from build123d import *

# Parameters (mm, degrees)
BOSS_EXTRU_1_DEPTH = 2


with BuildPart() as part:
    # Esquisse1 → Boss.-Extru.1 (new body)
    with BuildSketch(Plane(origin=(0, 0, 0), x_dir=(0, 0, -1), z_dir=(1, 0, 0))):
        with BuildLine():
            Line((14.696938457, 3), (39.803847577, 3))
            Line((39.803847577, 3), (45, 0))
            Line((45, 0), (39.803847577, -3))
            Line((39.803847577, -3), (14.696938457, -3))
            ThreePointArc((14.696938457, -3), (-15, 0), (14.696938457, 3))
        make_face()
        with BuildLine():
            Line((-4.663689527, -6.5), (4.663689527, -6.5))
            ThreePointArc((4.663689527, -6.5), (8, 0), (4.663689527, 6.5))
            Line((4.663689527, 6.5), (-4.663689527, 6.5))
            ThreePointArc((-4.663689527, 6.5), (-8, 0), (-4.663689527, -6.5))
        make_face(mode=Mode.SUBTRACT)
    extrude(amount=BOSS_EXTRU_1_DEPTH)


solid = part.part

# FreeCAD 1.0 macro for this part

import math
import FreeCAD as App
import Part
import Sketcher
from FreeCAD import Vector
Q = App.Units.Quantity

doc = App.newDocument("Part")
body = doc.addObject("PartDesign::Body", "Body")

# Sketch on YZ plane
sketch1 = body.newObject("Sketcher::SketchObject", "Sketch")
sketch1.AttachmentSupport = (doc.getObject("YZ_Plane"), [""])
sketch1.MapMode = "FlatFace"
sketch1.addGeometry(Part.LineSegment(Vector(3, -39.803848, 0), Vector(3, -14.696938, 0)), False)
sketch1.addGeometry(Part.ArcOfCircle(Part.Circle(Vector(0, 0, 0), Vector(0, 0, 1), 15), math.radians(-78.463041), math.radians(258.463041)), False)
sketch1.addGeometry(Part.LineSegment(Vector(-3, -14.696938, 0), Vector(-3, -39.803848, 0)), False)
sketch1.addGeometry(Part.LineSegment(Vector(-3, -39.803848, 0), Vector(0, -45, 0)), False)
sketch1.addGeometry(Part.LineSegment(Vector(0, -45, 0), Vector(3, -39.803848, 0)), False)
sketch1.addGeometry(Part.ArcOfCircle(Part.Circle(Vector(0, 0, 0), Vector(0, 0, 1), 8), math.radians(35.659088), math.radians(144.340912)), False)
sketch1.addGeometry(Part.LineSegment(Vector(6.5, 4.66369, 0), Vector(6.5, -4.66369, 0)), False)
sketch1.addGeometry(Part.ArcOfCircle(Part.Circle(Vector(0, 0, 0), Vector(0, 0, 1), 8), math.radians(-144.340912), math.radians(-35.659088)), False)
sketch1.addGeometry(Part.LineSegment(Vector(-6.5, -4.66369, 0), Vector(-6.5, 4.66369, 0)), False)
sketch1.addConstraint(Sketcher.Constraint("Coincident", 0, 2, 1, 1))
sketch1.addConstraint(Sketcher.Constraint("Coincident", 1, 2, 2, 1))
sketch1.addConstraint(Sketcher.Constraint("Coincident", 2, 2, 3, 1))
sketch1.addConstraint(Sketcher.Constraint("Coincident", 3, 2, 4, 1))
sketch1.addConstraint(Sketcher.Constraint("Coincident", 4, 2, 0, 1))
sketch1.addConstraint(Sketcher.Constraint("Coincident", 5, 1, 6, 1))
sketch1.addConstraint(Sketcher.Constraint("Coincident", 6, 2, 7, 2))
sketch1.addConstraint(Sketcher.Constraint("Coincident", 7, 1, 8, 1))
sketch1.addConstraint(Sketcher.Constraint("Coincident", 8, 2, 5, 2))
sketch1.addConstraint(Sketcher.Constraint("Vertical", 0))
sketch1.addConstraint(Sketcher.Constraint("Vertical", 2))
sketch1.addConstraint(Sketcher.Constraint("Vertical", 6))
sketch1.addConstraint(Sketcher.Constraint("Vertical", 8))
sketch1.addConstraint(Sketcher.Constraint("Coincident", 1, 3, -1, 1))
sketch1.addConstraint(Sketcher.Constraint("Coincident", 5, 3, -1, 1))
sketch1.addConstraint(Sketcher.Constraint("Coincident", 7, 3, -1, 1))
sketch1.addConstraint(Sketcher.Constraint("Equal", 5, 7))
sketch1.addConstraint(Sketcher.Constraint("Symmetric", 2, 2, 4, 2, -2))
sketch1.addConstraint(Sketcher.Constraint("PointOnObject", 3, 2, -2))
sketch1.addConstraint(Sketcher.Constraint("Horizontal", 6, 2, 7, 1))
sketch1.addConstraint(Sketcher.Constraint("Radius", 1, Q("15 mm")))
sketch1.addConstraint(Sketcher.Constraint("Radius", 5, Q("8 mm")))
sketch1.addConstraint(Sketcher.Constraint("Angle", 3, Q("-60 deg")))
sketch1.addConstraint(Sketcher.Constraint("Distance", 3, Q("6 mm")))
sketch1.addConstraint(Sketcher.Constraint("DistanceY", 3, 2, -1, 1, Q("45 mm")))
sketch1.addConstraint(Sketcher.Constraint("DistanceX", 7, 1, 6, 2, Q("13 mm")))
pad1 = body.newObject("PartDesign::Pad", "Pad")
pad1.Profile = sketch1
pad1.Length = 2

doc.recompute()
